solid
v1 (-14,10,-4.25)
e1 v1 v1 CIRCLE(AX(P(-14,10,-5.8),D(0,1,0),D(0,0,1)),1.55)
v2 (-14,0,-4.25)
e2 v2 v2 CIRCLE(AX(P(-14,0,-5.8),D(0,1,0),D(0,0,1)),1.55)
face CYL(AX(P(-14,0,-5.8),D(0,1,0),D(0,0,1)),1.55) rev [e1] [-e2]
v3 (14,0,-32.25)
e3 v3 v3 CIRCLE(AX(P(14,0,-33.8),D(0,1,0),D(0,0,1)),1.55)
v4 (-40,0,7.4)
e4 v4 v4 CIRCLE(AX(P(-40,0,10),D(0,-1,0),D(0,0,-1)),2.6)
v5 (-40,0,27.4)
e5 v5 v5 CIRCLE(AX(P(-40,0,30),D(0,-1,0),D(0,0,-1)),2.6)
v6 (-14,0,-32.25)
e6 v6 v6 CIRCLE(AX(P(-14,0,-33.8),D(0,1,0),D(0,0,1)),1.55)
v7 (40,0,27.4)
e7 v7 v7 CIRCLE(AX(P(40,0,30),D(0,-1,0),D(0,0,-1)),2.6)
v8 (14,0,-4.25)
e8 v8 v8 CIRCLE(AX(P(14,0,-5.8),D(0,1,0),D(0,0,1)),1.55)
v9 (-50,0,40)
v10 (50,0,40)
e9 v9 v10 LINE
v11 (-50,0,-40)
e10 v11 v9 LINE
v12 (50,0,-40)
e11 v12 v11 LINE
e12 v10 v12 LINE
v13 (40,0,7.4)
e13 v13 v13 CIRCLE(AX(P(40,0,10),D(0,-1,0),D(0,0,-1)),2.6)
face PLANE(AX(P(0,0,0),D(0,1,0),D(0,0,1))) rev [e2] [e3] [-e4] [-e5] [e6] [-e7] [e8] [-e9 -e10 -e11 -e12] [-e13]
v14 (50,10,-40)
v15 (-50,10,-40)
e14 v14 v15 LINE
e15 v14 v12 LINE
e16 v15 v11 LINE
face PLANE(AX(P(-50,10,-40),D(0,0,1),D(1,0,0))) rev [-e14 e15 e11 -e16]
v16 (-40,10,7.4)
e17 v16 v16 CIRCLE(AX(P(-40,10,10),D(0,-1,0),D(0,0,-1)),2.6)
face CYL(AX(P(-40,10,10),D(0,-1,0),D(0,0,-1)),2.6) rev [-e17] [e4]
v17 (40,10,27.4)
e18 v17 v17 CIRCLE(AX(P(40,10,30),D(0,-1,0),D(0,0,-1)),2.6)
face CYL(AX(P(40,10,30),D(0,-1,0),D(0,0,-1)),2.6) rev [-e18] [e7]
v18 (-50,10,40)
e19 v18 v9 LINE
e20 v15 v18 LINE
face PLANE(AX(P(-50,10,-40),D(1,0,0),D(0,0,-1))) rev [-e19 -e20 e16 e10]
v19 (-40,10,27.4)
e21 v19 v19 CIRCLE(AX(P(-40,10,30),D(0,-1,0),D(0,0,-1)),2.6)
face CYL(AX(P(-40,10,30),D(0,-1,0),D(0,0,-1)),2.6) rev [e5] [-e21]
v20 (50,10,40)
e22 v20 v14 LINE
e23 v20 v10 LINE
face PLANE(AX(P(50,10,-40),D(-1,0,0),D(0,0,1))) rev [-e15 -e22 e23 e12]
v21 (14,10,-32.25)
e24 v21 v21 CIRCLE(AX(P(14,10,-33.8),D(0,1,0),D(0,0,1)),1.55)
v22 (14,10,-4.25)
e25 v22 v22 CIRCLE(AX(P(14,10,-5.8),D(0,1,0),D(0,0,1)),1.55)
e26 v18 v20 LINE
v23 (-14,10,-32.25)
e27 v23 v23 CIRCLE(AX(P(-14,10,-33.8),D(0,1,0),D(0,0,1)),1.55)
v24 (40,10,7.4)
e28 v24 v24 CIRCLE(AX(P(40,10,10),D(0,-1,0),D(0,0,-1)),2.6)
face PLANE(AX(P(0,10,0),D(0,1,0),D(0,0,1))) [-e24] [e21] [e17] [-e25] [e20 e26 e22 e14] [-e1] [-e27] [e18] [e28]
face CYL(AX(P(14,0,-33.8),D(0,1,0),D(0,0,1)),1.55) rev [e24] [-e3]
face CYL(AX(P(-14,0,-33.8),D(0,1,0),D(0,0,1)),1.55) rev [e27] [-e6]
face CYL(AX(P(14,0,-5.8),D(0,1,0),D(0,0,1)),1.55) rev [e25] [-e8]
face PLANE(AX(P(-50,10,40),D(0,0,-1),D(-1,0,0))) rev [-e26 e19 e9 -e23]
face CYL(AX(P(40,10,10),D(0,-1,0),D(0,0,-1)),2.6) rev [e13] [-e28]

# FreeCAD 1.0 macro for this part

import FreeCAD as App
import Part
import Sketcher

V = App.Vector


def add_polygon(sketch, points):
    """Adds a closed chain of lines whose ends are joined by coincident constraints."""
    first, n = sketch.GeometryCount, len(points)
    for a, b in zip(points, points[1:] + points[:1]):
        sketch.addGeometry(Part.LineSegment(App.Vector(*a, 0), App.Vector(*b, 0)), False)
    for i in range(n):
        sketch.addConstraint(Sketcher.Constraint("Coincident", first + i, 2, first + (i + 1) % n, 1))

doc = App.newDocument("Part")
body = doc.addObject("PartDesign::Body", "Body")

# Sketch on XZ plane
sketch1 = body.newObject("Sketcher::SketchObject", "Sketch")
sketch1.AttachmentSupport = (doc.getObject("XZ_Plane"), [""])
sketch1.MapMode = "FlatFace"
add_polygon(sketch1, [(-50, -40), (-50, 40), (50, 40), (50, -40)])  # lines 0-3
sketch1.addConstraint(Sketcher.Constraint("Vertical", 0))
sketch1.addConstraint(Sketcher.Constraint("Horizontal", 1))
sketch1.addConstraint(Sketcher.Constraint("Vertical", 2))
sketch1.addConstraint(Sketcher.Constraint("Horizontal", 3))
sketch1.addConstraint(Sketcher.Constraint("Symmetric", 0, 2, 2, 2, -1, 1))
sketch1.addConstraint(Sketcher.Constraint("DistanceX", 1, 1, 1, 2, 100.0))
sketch1.addConstraint(Sketcher.Constraint("DistanceY", 0, 1, 0, 2, 80.0))
pad1 = body.newObject("PartDesign::Pad", "Pad")
pad1.Profile = sketch1
pad1.Length = 10
pad1.Reversed = True

# Sketch on XZ plane
sketch2 = body.newObject("Sketcher::SketchObject", "Sketch001")
sketch2.AttachmentSupport = (doc.getObject("XZ_Plane"), [""])
sketch2.MapMode = "FlatFace"
sketch2.addGeometry(Part.Circle(V(40, 30, 0), V(0, 0, 1), 2.6), False)
sketch2.addGeometry(Part.Circle(V(40, 10, 0), V(0, 0, 1), 2.6), False)
sketch2.addGeometry(Part.Circle(V(-40, 30, 0), V(0, 0, 1), 2.6), False)
sketch2.addGeometry(Part.Circle(V(-40, 10, 0), V(0, 0, 1), 2.6), False)
sketch2.addConstraint(Sketcher.Constraint("Equal", 0, 1))
sketch2.addConstraint(Sketcher.Constraint("Equal", 1, 2))
sketch2.addConstraint(Sketcher.Constraint("Equal", 2, 3))
sketch2.addConstraint(Sketcher.Constraint("Symmetric", 0, 3, 2, 3, -2))
sketch2.addConstraint(Sketcher.Constraint("Symmetric", 1, 3, 3, 3, -2))
sketch2.addConstraint(Sketcher.Constraint("Vertical", 0, 3, 1, 3))
sketch2.addConstraint(Sketcher.Constraint("Diameter", 0, 5.2))
sketch2.addConstraint(Sketcher.Constraint("DistanceX", -1, 1, 0, 3, 40.0))
sketch2.addConstraint(Sketcher.Constraint("DistanceY", -1, 1, 0, 3, 30.0))
sketch2.addConstraint(Sketcher.Constraint("DistanceY", -1, 1, 1, 3, 10.0))
pocket1 = body.newObject("PartDesign::Pocket", "Pocket")
pocket1.Profile = sketch2
pocket1.Type = "ThroughAll"

# Sketch on XZ plane
sketch3 = body.newObject("Sketcher::SketchObject", "Sketch002")
sketch3.AttachmentSupport = (doc.getObject("XZ_Plane"), [""])
sketch3.MapMode = "FlatFace"
sketch3.AttachmentOffset = App.Placement(V(0, 0, -10), App.Rotation())
sketch3.addGeometry(Part.Circle(V(14, -33.8, 0), V(0, 0, 1), 1.6), False)
sketch3.addGeometry(Part.Circle(V(14, -5.8, 0), V(0, 0, 1), 1.6), False)
sketch3.addGeometry(Part.Circle(V(-14, -33.8, 0), V(0, 0, 1), 1.6), False)
sketch3.addGeometry(Part.Circle(V(-14, -5.8, 0), V(0, 0, 1), 1.6), False)
sketch3.addConstraint(Sketcher.Constraint("Equal", 0, 1))
sketch3.addConstraint(Sketcher.Constraint("Equal", 1, 2))
sketch3.addConstraint(Sketcher.Constraint("Equal", 2, 3))
sketch3.addConstraint(Sketcher.Constraint("Symmetric", 0, 3, 2, 3, -2))
sketch3.addConstraint(Sketcher.Constraint("Symmetric", 1, 3, 3, 3, -2))
sketch3.addConstraint(Sketcher.Constraint("Vertical", 0, 3, 1, 3))
sketch3.addConstraint(Sketcher.Constraint("Diameter", 0, 3.1))
sketch3.addConstraint(Sketcher.Constraint("DistanceX", -1, 1, 0, 3, 14.0))
sketch3.addConstraint(Sketcher.Constraint("DistanceY", 0, 3, 1, 3, 28.0))
sketch3.addConstraint(Sketcher.Constraint("DistanceY", 0, 3, -1, 1, 33.8))
pocket2 = body.newObject("PartDesign::Pocket", "Pocket001")
pocket2.Profile = sketch3
pocket2.Type = "ThroughAll"
pocket2.Reversed = True

doc.recompute()
